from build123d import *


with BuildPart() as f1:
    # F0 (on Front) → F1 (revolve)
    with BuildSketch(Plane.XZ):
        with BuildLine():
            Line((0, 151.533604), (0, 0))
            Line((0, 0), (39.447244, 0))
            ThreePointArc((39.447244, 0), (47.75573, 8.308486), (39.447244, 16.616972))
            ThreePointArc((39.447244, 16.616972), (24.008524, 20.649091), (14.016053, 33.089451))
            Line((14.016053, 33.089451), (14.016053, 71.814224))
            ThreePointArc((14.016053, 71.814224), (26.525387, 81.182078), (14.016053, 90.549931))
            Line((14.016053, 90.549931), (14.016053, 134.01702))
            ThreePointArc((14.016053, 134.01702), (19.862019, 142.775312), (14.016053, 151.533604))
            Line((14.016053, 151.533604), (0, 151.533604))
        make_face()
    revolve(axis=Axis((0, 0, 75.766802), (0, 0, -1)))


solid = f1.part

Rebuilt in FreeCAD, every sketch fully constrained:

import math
import FreeCAD as App
import Part
import Sketcher

V = App.Vector

doc = App.newDocument("Part")
params = doc.addObject("Spreadsheet::Sheet", "Params")
for row, (alias, value) in enumerate([
    ("revolution_angle", "360 deg"),
], start=1):
    params.set(f"A{row}", alias)
    params.set(f"B{row}", "=" + value)
    params.setAlias(f"B{row}", alias)

body = doc.addObject("PartDesign::Body", "Body")

sketch1 = body.newObject("Sketcher::SketchObject", "Sketch")
sketch1.AttachmentSupport = (doc.getObject("XZ_Plane"), [""])
sketch1.MapMode = "FlatFace"
sketch1.addGeometry(Part.LineSegment(V(0, 151.533604, 0), V(0, 0, 0)), False)
sketch1.addGeometry(Part.LineSegment(V(0, 0, 0), V(39.447244, 0, 0)), False)
sketch1.addGeometry(Part.ArcOfCircle(Part.Circle(V(39.447244, 8.308486, 0), V(0, 0, 1), 8.308486), math.radians(-90), math.radians(90)), False)
sketch1.addGeometry(Part.ArcOfCircle(Part.Circle(V(37.825567, 41.980662, 0), V(0, 0, 1), 25.415479), math.radians(-159.522809), math.radians(-86.341663)), False)
sketch1.addGeometry(Part.LineSegment(V(14.016053, 33.089451, 0), V(14.016053, 71.814224, 0)), False)
sketch1.addGeometry(Part.ArcOfCircle(Part.Circle(V(16.763072, 81.182078, 0), V(0, 0, 1), 9.762315), math.radians(-106.34319), math.radians(106.34319)), False)
sketch1.addGeometry(Part.LineSegment(V(14.016053, 90.549931, 0), V(14.016053, 134.01702, 0)), False)
sketch1.addGeometry(Part.ArcOfCircle(Part.Circle(V(10.3783, 142.775312, 0), V(0, 0, 1), 9.483719), math.radians(-67.444465), math.radians(67.444465)), False)
sketch1.addGeometry(Part.LineSegment(V(14.016053, 151.533604, 0), V(0, 151.533604, 0)), False)
sketch1.addConstraint(Sketcher.Constraint("Coincident", 0, 2, 1, 1))
sketch1.addConstraint(Sketcher.Constraint("Coincident", 1, 2, 2, 1))
sketch1.addConstraint(Sketcher.Constraint("Coincident", 2, 2, 3, 2))
sketch1.addConstraint(Sketcher.Constraint("Coincident", 3, 1, 4, 1))
sketch1.addConstraint(Sketcher.Constraint("Coincident", 4, 2, 5, 1))
sketch1.addConstraint(Sketcher.Constraint("Coincident", 5, 2, 6, 1))
sketch1.addConstraint(Sketcher.Constraint("Coincident", 6, 2, 7, 1))
sketch1.addConstraint(Sketcher.Constraint("Coincident", 7, 2, 8, 1))
sketch1.addConstraint(Sketcher.Constraint("Coincident", 8, 2, 0, 1))
sketch1.addConstraint(Sketcher.Constraint("Vertical", 0))
sketch1.addConstraint(Sketcher.Constraint("Horizontal", 1))
sketch1.addConstraint(Sketcher.Constraint("Vertical", 4))
sketch1.addConstraint(Sketcher.Constraint("Vertical", 6))
sketch1.addConstraint(Sketcher.Constraint("Horizontal", 8))
sketch1.addConstraint(Sketcher.Constraint("Coincident", 0, 2, -1, 1))
sketch1.addConstraint(Sketcher.Constraint("Radius", 3, 25.415479))
sketch1.addConstraint(Sketcher.Constraint("Radius", 7, 9.483719))
sketch1.addConstraint(Sketcher.Constraint("Radius", 2, 8.308486))
sketch1.addConstraint(Sketcher.Constraint("Radius", 5, 9.762315))
sketch1.addConstraint(Sketcher.Constraint("DistanceY", 6, 1, 6, 2, 43.467089))
sketch1.addConstraint(Sketcher.Constraint("DistanceX", -1, 1, 7, 3, 10.3783))
sketch1.addConstraint(Sketcher.Constraint("DistanceX", 1, 1, 1, 2, 39.447244))
sketch1.addConstraint(Sketcher.Constraint("DistanceX", 8, 2, 8, 1, 14.016053))
sketch1.addConstraint(Sketcher.Constraint("DistanceY", 0, 2, 0, 1, 151.533604))
sketch1.addConstraint(Sketcher.Constraint("DistanceY", 4, 1, 4, 2, 38.724773))
sketch1.addConstraint(Sketcher.Constraint("DistanceY", -1, 1, 3, 3, 41.980662))
sketch1.addConstraint(Sketcher.Constraint("DistanceY", -1, 1, 3, 1, 33.089451))
sketch1.addConstraint(Sketcher.Constraint("DistanceY", -1, 1, 5, 2, 90.549931))
sketch1.addConstraint(Sketcher.Constraint("DistanceX", 5, 3, 2, 3, 22.684172))
sketch1.addConstraint(Sketcher.Constraint("DistanceY", 2, 3, 5, 3, 72.873592))
revolution = body.newObject("PartDesign::Revolution", "Revolution")
revolution.Profile = sketch1
revolution.ReferenceAxis = (sketch1, ["V_Axis"])
revolution.setExpression("Angle", "Params.revolution_angle")

doc.recompute()
